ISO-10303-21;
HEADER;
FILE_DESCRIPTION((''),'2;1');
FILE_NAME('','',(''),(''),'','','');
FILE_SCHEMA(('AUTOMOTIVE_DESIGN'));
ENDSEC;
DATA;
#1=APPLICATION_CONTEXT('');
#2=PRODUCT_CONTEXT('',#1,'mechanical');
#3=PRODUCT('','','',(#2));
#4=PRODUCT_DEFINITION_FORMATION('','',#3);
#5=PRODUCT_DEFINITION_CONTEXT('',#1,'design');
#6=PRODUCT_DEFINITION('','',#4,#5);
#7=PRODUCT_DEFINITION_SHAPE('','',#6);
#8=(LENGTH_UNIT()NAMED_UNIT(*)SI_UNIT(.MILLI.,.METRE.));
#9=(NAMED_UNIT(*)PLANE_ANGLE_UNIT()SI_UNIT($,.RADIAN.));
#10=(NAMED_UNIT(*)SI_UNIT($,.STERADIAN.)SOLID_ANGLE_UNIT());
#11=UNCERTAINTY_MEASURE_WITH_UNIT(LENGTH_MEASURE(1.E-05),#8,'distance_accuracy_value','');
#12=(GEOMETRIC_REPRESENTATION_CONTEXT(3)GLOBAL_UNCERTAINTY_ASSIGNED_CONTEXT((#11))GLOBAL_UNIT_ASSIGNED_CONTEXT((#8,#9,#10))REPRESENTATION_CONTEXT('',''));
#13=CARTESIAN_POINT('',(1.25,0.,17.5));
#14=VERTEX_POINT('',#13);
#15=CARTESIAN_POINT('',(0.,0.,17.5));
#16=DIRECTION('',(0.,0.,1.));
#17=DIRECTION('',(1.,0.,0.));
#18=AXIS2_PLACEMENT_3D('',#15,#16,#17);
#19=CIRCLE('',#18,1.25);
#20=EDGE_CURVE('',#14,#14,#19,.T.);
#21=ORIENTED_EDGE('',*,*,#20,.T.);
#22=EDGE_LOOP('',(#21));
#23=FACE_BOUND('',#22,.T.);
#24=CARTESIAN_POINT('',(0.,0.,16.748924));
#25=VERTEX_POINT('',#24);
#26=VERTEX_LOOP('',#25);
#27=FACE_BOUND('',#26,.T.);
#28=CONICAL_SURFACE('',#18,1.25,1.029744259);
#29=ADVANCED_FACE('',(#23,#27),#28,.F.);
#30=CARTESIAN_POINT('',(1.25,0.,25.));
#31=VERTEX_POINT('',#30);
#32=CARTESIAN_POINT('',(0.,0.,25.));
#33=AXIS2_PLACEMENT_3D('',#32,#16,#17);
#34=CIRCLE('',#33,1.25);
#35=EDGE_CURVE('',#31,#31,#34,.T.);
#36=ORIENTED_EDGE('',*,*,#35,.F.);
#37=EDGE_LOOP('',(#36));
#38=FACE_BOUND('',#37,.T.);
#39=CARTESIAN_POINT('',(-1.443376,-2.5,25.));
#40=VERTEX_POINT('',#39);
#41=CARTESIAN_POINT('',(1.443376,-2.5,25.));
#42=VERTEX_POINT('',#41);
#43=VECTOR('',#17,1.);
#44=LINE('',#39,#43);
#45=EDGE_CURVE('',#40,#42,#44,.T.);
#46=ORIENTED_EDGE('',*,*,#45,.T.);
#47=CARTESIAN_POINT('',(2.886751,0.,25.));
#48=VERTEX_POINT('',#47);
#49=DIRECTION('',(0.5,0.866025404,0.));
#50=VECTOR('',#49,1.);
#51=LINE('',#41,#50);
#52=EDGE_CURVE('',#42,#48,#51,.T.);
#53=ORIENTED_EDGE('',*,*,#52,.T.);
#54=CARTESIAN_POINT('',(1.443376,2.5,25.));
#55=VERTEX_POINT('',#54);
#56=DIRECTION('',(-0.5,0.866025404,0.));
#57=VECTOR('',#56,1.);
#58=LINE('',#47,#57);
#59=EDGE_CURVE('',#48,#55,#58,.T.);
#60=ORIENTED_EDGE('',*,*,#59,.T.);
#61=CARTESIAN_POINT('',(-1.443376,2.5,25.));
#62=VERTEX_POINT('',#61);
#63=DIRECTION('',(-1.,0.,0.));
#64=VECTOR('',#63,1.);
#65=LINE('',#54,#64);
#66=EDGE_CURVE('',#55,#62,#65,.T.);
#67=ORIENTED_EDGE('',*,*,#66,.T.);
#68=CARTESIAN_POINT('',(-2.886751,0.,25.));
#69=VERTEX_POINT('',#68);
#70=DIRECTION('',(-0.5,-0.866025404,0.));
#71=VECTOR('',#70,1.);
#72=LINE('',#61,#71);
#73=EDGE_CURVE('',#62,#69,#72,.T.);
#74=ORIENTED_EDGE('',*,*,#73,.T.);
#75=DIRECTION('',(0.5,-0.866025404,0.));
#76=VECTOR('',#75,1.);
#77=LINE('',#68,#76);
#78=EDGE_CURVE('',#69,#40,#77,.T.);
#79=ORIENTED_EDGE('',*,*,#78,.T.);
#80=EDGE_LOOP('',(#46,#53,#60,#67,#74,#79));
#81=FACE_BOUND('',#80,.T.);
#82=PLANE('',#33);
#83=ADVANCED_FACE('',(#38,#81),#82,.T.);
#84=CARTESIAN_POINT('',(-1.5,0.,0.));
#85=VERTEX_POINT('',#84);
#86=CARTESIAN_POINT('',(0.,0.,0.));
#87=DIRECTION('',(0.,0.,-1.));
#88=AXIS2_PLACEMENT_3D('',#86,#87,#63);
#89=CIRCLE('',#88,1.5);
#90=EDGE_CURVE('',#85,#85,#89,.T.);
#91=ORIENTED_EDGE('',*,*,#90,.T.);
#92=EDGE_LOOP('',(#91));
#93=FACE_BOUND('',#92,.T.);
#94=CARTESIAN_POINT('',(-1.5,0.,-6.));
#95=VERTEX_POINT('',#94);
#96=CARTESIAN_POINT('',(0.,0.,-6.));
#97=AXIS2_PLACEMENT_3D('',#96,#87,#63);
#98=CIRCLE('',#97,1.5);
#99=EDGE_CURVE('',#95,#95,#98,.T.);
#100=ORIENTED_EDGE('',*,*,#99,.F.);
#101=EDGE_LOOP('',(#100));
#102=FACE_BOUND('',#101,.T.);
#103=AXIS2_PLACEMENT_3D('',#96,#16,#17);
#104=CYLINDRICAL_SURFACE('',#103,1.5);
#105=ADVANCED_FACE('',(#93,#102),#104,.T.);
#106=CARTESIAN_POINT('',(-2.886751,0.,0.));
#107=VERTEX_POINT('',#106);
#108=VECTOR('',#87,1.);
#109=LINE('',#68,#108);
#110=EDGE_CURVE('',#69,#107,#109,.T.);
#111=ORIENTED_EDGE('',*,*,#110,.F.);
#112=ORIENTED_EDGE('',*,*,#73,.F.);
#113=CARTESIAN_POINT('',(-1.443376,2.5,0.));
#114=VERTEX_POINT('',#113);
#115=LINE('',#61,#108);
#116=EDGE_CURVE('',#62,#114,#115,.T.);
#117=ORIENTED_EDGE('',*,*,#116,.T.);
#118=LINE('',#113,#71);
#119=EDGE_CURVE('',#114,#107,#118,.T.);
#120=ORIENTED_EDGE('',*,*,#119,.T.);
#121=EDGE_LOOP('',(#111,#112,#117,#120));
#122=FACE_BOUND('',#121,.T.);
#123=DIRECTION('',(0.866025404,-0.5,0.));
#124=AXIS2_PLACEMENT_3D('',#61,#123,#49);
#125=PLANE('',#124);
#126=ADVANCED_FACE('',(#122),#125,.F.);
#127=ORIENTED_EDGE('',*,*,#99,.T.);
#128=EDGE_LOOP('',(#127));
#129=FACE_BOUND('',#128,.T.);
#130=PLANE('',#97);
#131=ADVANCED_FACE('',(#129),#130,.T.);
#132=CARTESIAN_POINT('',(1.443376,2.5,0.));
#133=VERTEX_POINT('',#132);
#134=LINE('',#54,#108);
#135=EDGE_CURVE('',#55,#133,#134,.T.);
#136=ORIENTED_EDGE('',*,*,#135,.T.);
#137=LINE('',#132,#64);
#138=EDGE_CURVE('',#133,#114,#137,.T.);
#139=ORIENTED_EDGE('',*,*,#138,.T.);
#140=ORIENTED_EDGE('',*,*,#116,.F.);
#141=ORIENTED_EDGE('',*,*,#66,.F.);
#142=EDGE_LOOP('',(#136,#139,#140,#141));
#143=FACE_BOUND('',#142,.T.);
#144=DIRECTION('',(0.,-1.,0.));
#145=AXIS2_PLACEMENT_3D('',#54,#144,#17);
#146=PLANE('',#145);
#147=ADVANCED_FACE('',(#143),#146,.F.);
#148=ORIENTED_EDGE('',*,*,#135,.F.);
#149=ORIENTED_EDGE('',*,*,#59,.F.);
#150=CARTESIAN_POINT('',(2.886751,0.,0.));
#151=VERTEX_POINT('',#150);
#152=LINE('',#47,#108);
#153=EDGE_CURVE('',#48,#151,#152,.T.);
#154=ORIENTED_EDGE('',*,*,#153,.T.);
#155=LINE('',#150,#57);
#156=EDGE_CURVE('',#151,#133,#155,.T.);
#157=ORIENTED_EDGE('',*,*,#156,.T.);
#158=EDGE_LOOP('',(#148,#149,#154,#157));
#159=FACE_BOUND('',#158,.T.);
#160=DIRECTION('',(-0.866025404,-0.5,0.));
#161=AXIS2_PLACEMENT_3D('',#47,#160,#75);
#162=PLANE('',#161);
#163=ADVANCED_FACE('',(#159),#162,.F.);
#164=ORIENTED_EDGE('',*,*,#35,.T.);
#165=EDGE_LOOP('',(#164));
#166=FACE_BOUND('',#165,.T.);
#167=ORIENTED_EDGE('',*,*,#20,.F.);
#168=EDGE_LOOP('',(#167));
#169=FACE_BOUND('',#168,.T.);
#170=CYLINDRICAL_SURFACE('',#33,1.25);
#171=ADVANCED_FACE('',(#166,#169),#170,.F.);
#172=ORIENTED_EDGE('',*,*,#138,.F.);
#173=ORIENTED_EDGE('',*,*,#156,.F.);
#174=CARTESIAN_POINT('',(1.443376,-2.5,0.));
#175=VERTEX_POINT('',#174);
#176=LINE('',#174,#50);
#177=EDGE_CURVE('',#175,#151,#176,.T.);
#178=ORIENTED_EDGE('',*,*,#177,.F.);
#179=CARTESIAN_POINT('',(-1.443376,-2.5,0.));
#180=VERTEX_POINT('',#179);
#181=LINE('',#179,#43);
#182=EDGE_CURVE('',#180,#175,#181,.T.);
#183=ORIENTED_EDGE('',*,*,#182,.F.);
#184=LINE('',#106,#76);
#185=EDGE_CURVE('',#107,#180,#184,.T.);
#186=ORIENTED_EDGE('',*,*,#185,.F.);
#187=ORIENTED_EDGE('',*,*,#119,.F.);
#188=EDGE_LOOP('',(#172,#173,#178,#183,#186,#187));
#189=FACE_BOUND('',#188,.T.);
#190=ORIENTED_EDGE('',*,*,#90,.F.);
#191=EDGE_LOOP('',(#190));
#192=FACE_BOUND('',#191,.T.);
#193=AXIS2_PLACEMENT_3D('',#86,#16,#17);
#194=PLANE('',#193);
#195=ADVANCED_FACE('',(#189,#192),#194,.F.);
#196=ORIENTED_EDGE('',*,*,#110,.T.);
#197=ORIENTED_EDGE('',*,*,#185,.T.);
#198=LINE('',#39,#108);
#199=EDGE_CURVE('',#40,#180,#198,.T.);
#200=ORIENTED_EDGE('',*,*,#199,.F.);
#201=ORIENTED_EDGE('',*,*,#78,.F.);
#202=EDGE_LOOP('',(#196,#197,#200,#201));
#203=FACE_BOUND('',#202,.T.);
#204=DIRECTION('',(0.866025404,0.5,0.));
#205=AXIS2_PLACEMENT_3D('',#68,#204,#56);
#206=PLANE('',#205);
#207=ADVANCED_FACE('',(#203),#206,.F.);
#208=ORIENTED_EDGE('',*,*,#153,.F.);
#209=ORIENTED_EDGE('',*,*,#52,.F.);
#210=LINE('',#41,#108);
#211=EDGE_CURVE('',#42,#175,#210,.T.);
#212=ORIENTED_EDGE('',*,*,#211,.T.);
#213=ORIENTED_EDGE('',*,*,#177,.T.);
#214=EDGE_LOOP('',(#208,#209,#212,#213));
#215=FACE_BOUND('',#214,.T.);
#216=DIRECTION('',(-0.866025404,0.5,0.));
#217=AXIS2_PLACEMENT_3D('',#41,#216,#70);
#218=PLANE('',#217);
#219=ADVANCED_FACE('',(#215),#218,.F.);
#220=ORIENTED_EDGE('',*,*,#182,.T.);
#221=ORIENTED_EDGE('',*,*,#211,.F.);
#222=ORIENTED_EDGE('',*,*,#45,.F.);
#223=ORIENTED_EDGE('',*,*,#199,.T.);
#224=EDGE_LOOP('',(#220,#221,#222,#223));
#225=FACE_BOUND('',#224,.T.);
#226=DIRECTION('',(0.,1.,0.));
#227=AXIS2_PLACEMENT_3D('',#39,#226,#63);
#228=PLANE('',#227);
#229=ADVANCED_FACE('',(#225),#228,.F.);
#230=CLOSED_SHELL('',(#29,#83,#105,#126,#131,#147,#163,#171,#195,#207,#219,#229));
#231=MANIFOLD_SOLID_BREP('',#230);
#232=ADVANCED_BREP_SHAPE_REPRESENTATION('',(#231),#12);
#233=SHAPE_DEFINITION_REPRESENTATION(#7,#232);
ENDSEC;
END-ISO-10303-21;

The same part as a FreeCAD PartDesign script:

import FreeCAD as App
import Part
import Sketcher

V = App.Vector
Q = App.Units.Quantity


def add_polygon(sketch, points):
    """Adds a closed chain of lines whose ends are joined by coincident constraints."""
    first, n = sketch.GeometryCount, len(points)
    for a, b in zip(points, points[1:] + points[:1]):
        sketch.addGeometry(Part.LineSegment(App.Vector(*a, 0), App.Vector(*b, 0)), False)
    for i in range(n):
        sketch.addConstraint(Sketcher.Constraint("Coincident", first + i, 2, first + (i + 1) % n, 1))

doc = App.newDocument("Part")
body = doc.addObject("PartDesign::Body", "Body")

# Sketch on XY plane
sketch1 = body.newObject("Sketcher::SketchObject", "Sketch")
sketch1.AttachmentSupport = (doc.getObject("XY_Plane"), [""])
sketch1.MapMode = "FlatFace"
add_polygon(sketch1, [(-1.4, 2.5), (-2.9, 0), (-1.4, -2.5), (1.4, -2.5), (2.9, 0), (1.4, 2.5)])  # lines 0-5
sketch1.addConstraint([
    Sketcher.Constraint("Horizontal", 2),
    Sketcher.Constraint("Horizontal", 5),
    Sketcher.Constraint("Symmetric", 0, 2, 3, 2, -1, 1),
    Sketcher.Constraint("Symmetric", 1, 2, 4, 2, -1, 1),
    Sketcher.Constraint("PointOnObject", 0, 2, -1),
    Sketcher.Constraint("Parallel", 0, 3),
    Sketcher.Constraint("Vertical", 2, 2, 4, 2),
    Sketcher.Constraint("Angle", 0, Q("-120 deg")),
    Sketcher.Constraint("DistanceY", 2, 2, 4, 2, Q("5 mm")),
    Sketcher.Constraint("DistanceX", 2, 1, 2, 2, Q("2.886751 mm")),
])
pad1 = body.newObject("PartDesign::Pad", "Pad")
pad1.Profile = sketch1
pad1.Length = 25

# Sketch on XY plane
sketch2 = body.newObject("Sketcher::SketchObject", "Sketch001")
sketch2.AttachmentSupport = (doc.getObject("XY_Plane"), [""])
sketch2.MapMode = "FlatFace"
sketch2.addGeometry(Part.Circle(V(0, 0, 0), V(0, 0, 1), 1.5), False)
sketch2.addConstraint([
    Sketcher.Constraint("Coincident", 0, 3, -1, 1),
    Sketcher.Constraint("Diameter", 0, Q("3 mm")),
])
pad2 = body.newObject("PartDesign::Pad", "Pad001")
pad2.Profile = sketch2
pad2.Length = 6
pad2.Reversed = True

# Sketch on XY plane
sketch3 = body.newObject("Sketcher::SketchObject", "Sketch002")
sketch3.AttachmentSupport = (doc.getObject("XY_Plane"), [""])
sketch3.MapMode = "FlatFace"
sketch3.AttachmentOffset = App.Placement(V(0, 0, 25), App.Rotation())
sketch3.addGeometry(Part.Circle(V(0, 0, 0), V(0, 0, 1), 1.2), False)
sketch3.addConstraint([
    Sketcher.Constraint("Coincident", 0, 3, -1, 1),
    Sketcher.Constraint("Diameter", 0, Q("2.5 mm")),
])
doc.recompute()
hole = body.newObject("PartDesign::Hole", "Hole")
hole.Profile = sketch3
hole.ThreadType = "None"
hole.Diameter = 2.5
hole.DepthType = "Dimension"
hole.Depth = 7.5
hole.DrillPoint = "Angled"
hole.DrillPointAngle = 118

doc.recompute()
